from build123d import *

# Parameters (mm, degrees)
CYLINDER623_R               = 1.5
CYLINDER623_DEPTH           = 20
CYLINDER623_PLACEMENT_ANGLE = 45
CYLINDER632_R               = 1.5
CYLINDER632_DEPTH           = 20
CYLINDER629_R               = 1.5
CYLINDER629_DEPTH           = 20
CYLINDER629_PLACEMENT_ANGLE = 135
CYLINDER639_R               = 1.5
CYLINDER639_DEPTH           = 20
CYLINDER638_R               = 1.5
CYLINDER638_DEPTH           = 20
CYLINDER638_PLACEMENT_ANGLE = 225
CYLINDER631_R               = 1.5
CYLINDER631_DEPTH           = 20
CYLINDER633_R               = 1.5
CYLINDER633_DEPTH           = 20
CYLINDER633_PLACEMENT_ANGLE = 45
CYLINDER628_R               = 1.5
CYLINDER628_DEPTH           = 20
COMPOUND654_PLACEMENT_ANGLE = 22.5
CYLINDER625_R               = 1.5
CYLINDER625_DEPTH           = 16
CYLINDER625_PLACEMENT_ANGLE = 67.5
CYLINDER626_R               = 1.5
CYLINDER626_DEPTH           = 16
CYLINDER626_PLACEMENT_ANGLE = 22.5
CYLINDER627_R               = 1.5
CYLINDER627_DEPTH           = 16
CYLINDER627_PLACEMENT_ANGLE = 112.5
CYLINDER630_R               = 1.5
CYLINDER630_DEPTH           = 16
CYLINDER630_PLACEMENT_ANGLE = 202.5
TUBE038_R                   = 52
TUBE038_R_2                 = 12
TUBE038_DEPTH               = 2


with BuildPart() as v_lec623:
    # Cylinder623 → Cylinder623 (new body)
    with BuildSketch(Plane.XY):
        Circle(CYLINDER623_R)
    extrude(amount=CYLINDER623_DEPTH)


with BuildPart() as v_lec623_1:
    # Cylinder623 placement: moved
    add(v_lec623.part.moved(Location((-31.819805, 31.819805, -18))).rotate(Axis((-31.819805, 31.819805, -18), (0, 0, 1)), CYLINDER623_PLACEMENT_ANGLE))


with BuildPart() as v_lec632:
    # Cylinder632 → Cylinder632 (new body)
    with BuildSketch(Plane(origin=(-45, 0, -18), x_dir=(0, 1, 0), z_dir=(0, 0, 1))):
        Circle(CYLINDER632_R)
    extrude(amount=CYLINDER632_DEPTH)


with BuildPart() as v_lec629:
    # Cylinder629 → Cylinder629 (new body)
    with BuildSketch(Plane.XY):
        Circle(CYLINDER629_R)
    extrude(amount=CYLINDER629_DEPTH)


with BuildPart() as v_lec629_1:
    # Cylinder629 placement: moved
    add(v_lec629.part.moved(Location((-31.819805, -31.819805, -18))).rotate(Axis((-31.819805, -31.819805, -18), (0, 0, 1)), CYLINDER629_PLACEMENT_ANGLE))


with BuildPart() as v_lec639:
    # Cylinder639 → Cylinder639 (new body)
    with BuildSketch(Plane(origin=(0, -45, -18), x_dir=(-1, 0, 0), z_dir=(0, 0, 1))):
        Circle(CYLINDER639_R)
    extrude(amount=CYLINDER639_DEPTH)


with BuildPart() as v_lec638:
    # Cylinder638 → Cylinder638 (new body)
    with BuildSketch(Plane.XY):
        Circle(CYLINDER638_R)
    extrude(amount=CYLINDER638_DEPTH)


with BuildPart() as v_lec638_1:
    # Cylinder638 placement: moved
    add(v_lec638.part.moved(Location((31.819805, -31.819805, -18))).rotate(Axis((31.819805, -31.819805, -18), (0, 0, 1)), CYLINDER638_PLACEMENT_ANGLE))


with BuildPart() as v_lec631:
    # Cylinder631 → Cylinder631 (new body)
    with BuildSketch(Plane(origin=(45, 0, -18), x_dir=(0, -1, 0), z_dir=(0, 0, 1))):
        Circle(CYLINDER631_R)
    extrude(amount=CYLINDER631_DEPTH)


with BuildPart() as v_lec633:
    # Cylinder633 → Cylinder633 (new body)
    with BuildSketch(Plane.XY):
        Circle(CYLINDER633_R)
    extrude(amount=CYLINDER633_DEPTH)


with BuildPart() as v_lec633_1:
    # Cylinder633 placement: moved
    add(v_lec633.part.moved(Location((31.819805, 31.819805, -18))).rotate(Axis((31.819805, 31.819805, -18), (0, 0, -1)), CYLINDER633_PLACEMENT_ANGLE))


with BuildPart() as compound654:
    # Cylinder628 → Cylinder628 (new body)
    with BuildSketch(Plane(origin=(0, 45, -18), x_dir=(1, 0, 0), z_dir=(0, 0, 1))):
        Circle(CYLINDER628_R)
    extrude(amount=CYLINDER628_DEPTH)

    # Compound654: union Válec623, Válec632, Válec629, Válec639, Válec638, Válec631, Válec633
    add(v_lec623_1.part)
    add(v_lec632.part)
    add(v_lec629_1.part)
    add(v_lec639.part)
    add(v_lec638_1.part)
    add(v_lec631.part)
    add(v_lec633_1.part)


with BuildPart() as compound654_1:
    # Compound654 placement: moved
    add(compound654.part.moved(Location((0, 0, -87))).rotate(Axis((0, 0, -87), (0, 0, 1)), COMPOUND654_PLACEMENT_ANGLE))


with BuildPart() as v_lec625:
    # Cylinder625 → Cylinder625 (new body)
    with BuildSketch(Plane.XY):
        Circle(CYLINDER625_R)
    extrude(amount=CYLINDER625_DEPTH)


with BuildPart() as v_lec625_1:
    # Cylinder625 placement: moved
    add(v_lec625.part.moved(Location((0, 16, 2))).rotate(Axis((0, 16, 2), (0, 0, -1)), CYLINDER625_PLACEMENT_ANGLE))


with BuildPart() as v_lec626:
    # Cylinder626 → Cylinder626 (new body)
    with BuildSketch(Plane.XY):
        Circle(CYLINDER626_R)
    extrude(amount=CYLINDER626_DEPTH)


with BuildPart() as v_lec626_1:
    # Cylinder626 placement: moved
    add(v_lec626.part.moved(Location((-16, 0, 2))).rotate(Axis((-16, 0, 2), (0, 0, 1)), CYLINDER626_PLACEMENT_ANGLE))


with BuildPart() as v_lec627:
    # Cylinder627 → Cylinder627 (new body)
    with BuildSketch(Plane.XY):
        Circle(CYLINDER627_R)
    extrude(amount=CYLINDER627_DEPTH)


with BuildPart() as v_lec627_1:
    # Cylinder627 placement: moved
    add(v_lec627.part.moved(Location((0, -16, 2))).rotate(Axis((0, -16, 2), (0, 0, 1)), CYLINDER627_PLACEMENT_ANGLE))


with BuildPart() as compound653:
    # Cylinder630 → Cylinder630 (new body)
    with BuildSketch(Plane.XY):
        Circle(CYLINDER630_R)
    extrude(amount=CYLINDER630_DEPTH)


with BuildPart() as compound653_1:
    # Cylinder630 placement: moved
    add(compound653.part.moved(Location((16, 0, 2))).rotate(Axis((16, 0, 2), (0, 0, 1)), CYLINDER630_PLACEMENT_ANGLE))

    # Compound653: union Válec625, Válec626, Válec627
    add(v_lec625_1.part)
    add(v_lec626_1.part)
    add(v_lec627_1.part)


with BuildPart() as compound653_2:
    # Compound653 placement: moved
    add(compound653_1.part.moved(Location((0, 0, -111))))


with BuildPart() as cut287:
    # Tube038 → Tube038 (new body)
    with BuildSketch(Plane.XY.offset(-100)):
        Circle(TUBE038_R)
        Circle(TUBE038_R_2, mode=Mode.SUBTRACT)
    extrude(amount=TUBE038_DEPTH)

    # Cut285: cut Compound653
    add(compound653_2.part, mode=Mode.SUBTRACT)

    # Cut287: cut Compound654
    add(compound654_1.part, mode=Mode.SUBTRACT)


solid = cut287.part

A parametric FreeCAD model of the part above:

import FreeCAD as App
import Part
import Sketcher
Q = App.Units.Quantity

doc = App.newDocument("Part")
body = doc.addObject("PartDesign::Body", "Body")

# Sketch on XY plane
sketch1 = doc.addObject("Sketcher::SketchObject", "Sketch")
body.addObject(sketch1)
sketch1.AttachmentSupport = (doc.XY_Plane, [""])
sketch1.MapMode = "FlatFace"
sketch1.addGeometry(Part.Circle(App.Vector(0, 0, 0), App.Vector(0, 0, 1), 1.5), False)
sketch1.addConstraint(Sketcher.Constraint("Coincident", 0, 3, -1, 1))
sketch1.addConstraint(Sketcher.Constraint("Diameter", 0, Q("3 mm")))
pad1 = doc.addObject("PartDesign::Pad", "Pad")
body.addObject(pad1)
pad1.Profile = sketch1
pad1.Length = 20
body2 = doc.addObject("PartDesign::Body", "Body001")
doc.recompute()

body.Placement = App.Placement(App.Vector(-31.819805, 31.819805, -18), App.Rotation(App.Vector(0, 0, 1), 45))
boolean = doc.addObject("PartDesign::Boolean", "Boolean")
body2.addObject(boolean)
boolean.Type = "Fuse"
boolean.addObjects([body])
body3 = doc.addObject("PartDesign::Body", "Body002")

# Sketch on XY plane
sketch2 = doc.addObject("Sketcher::SketchObject", "Sketch001")
body3.addObject(sketch2)
sketch2.AttachmentSupport = (doc.getObject("XY_Plane002"), [""])
sketch2.MapMode = "FlatFace"
sketch2.AttachmentOffset = App.Placement(App.Vector(0, 0, -18), App.Rotation())
sketch2.addGeometry(Part.Circle(App.Vector(-45, 0, 0), App.Vector(0, 0, 1), 1.5), False)
sketch2.addConstraint(Sketcher.Constraint("PointOnObject", 0, 3, -1))
sketch2.addConstraint(Sketcher.Constraint("Diameter", 0, Q("3 mm")))
sketch2.addConstraint(Sketcher.Constraint("DistanceX", 0, 3, -1, 1, Q("45 mm")))
pad2 = doc.addObject("PartDesign::Pad", "Pad001")
body3.addObject(pad2)
pad2.Profile = sketch2
pad2.Length = 20
body4 = doc.addObject("PartDesign::Body", "Body003")

# Sketch on XY plane
sketch3 = doc.addObject("Sketcher::SketchObject", "Sketch002")
body4.addObject(sketch3)
sketch3.AttachmentSupport = (doc.getObject("XY_Plane003"), [""])
sketch3.MapMode = "FlatFace"
sketch3.addGeometry(Part.Circle(App.Vector(0, 0, 0), App.Vector(0, 0, 1), 1.5), False)
sketch3.addConstraint(Sketcher.Constraint("Coincident", 0, 3, -1, 1))
sketch3.addConstraint(Sketcher.Constraint("Diameter", 0, Q("3 mm")))
pad3 = doc.addObject("PartDesign::Pad", "Pad002")
body4.addObject(pad3)
pad3.Profile = sketch3
pad3.Length = 20
body5 = doc.addObject("PartDesign::Body", "Body004")
doc.recompute()

body4.Placement = App.Placement(App.Vector(-31.819805, -31.819805, -18), App.Rotation(App.Vector(0, 0, 1), 135))
boolean2 = doc.addObject("PartDesign::Boolean", "Boolean001")
body5.addObject(boolean2)
boolean2.Type = "Fuse"
boolean2.addObjects([body4])
body6 = doc.addObject("PartDesign::Body", "Body005")

# Sketch on XY plane
sketch4 = doc.addObject("Sketcher::SketchObject", "Sketch003")
body6.addObject(sketch4)
sketch4.AttachmentSupport = (doc.getObject("XY_Plane005"), [""])
sketch4.MapMode = "FlatFace"
sketch4.AttachmentOffset = App.Placement(App.Vector(0, 0, -18), App.Rotation())
sketch4.addGeometry(Part.Circle(App.Vector(0, -45, 0), App.Vector(0, 0, 1), 1.5), False)
sketch4.addConstraint(Sketcher.Constraint("PointOnObject", 0, 3, -2))
sketch4.addConstraint(Sketcher.Constraint("Diameter", 0, Q("3 mm")))
sketch4.addConstraint(Sketcher.Constraint("DistanceY", 0, 3, -1, 1, Q("45 mm")))
pad4 = doc.addObject("PartDesign::Pad", "Pad003")
body6.addObject(pad4)
pad4.Profile = sketch4
pad4.Length = 20
body7 = doc.addObject("PartDesign::Body", "Body006")

# Sketch on XY plane
sketch5 = doc.addObject("Sketcher::SketchObject", "Sketch004")
body7.addObject(sketch5)
sketch5.AttachmentSupport = (doc.getObject("XY_Plane006"), [""])
sketch5.MapMode = "FlatFace"
sketch5.addGeometry(Part.Circle(App.Vector(0, 0, 0), App.Vector(0, 0, 1), 1.5), False)
sketch5.addConstraint(Sketcher.Constraint("Coincident", 0, 3, -1, 1))
sketch5.addConstraint(Sketcher.Constraint("Diameter", 0, Q("3 mm")))
pad5 = doc.addObject("PartDesign::Pad", "Pad004")
body7.addObject(pad5)
pad5.Profile = sketch5
pad5.Length = 20
body8 = doc.addObject("PartDesign::Body", "Body007")
doc.recompute()

body7.Placement = App.Placement(App.Vector(31.819805, -31.819805, -18), App.Rotation(App.Vector(0, 0, 1), 225))
boolean3 = doc.addObject("PartDesign::Boolean", "Boolean002")
body8.addObject(boolean3)
boolean3.Type = "Fuse"
boolean3.addObjects([body7])
body9 = doc.addObject("PartDesign::Body", "Body008")

# Sketch on XY plane
sketch6 = doc.addObject("Sketcher::SketchObject", "Sketch005")
body9.addObject(sketch6)
sketch6.AttachmentSupport = (doc.getObject("XY_Plane008"), [""])
sketch6.MapMode = "FlatFace"
sketch6.AttachmentOffset = App.Placement(App.Vector(0, 0, -18), App.Rotation())
sketch6.addGeometry(Part.Circle(App.Vector(45, 0, 0), App.Vector(0, 0, 1), 1.5), False)
sketch6.addConstraint(Sketcher.Constraint("PointOnObject", 0, 3, -1))
sketch6.addConstraint(Sketcher.Constraint("Diameter", 0, Q("3 mm")))
sketch6.addConstraint(Sketcher.Constraint("DistanceX", -1, 1, 0, 3, Q("45 mm")))
pad6 = doc.addObject("PartDesign::Pad", "Pad005")
body9.addObject(pad6)
pad6.Profile = sketch6
pad6.Length = 20
body10 = doc.addObject("PartDesign::Body", "Body009")

# Sketch on XY plane
sketch7 = doc.addObject("Sketcher::SketchObject", "Sketch006")
body10.addObject(sketch7)
sketch7.AttachmentSupport = (doc.getObject("XY_Plane009"), [""])
sketch7.MapMode = "FlatFace"
sketch7.addGeometry(Part.Circle(App.Vector(0, 0, 0), App.Vector(0, 0, 1), 1.5), False)
sketch7.addConstraint(Sketcher.Constraint("Coincident", 0, 3, -1, 1))
sketch7.addConstraint(Sketcher.Constraint("Diameter", 0, Q("3 mm")))
pad7 = doc.addObject("PartDesign::Pad", "Pad006")
body10.addObject(pad7)
pad7.Profile = sketch7
pad7.Length = 20
body11 = doc.addObject("PartDesign::Body", "Body010")
doc.recompute()

body10.Placement = App.Placement(App.Vector(31.819805, 31.819805, -18), App.Rotation(App.Vector(0, 0, -1), 45))
boolean4 = doc.addObject("PartDesign::Boolean", "Boolean003")
body11.addObject(boolean4)
boolean4.Type = "Fuse"
boolean4.addObjects([body10])
body12 = doc.addObject("PartDesign::Body", "Body011")
body12.AllowCompound = True

# Sketch on XY plane
sketch8 = doc.addObject("Sketcher::SketchObject", "Sketch007")
body12.addObject(sketch8)
sketch8.AttachmentSupport = (doc.getObject("XY_Plane011"), [""])
sketch8.MapMode = "FlatFace"
sketch8.AttachmentOffset = App.Placement(App.Vector(0, 0, -18), App.Rotation())
sketch8.addGeometry(Part.Circle(App.Vector(0, 45, 0), App.Vector(0, 0, 1), 1.5), False)
sketch8.addConstraint(Sketcher.Constraint("PointOnObject", 0, 3, -2))
sketch8.addConstraint(Sketcher.Constraint("Diameter", 0, Q("3 mm")))
sketch8.addConstraint(Sketcher.Constraint("DistanceY", -1, 1, 0, 3, Q("45 mm")))
pad8 = doc.addObject("PartDesign::Pad", "Pad007")
body12.addObject(pad8)
pad8.Profile = sketch8
pad8.Length = 20
doc.recompute()

boolean5 = doc.addObject("PartDesign::Boolean", "Boolean004")
body12.addObject(boolean5)
boolean5.Type = "Fuse"
boolean5.addObjects([body2])
doc.recompute()

boolean6 = doc.addObject("PartDesign::Boolean", "Boolean005")
body12.addObject(boolean6)
boolean6.Type = "Fuse"
boolean6.addObjects([body3])
doc.recompute()

boolean7 = doc.addObject("PartDesign::Boolean", "Boolean006")
body12.addObject(boolean7)
boolean7.Type = "Fuse"
boolean7.addObjects([body5])
doc.recompute()

boolean8 = doc.addObject("PartDesign::Boolean", "Boolean007")
body12.addObject(boolean8)
boolean8.Type = "Fuse"
boolean8.addObjects([body6])
doc.recompute()

boolean9 = doc.addObject("PartDesign::Boolean", "Boolean008")
body12.addObject(boolean9)
boolean9.Type = "Fuse"
boolean9.addObjects([body8])
doc.recompute()

boolean10 = doc.addObject("PartDesign::Boolean", "Boolean009")
body12.addObject(boolean10)
boolean10.Type = "Fuse"
boolean10.addObjects([body9])
doc.recompute()

boolean11 = doc.addObject("PartDesign::Boolean", "Boolean010")
body12.addObject(boolean11)
boolean11.Type = "Fuse"
boolean11.addObjects([body11])
body13 = doc.addObject("PartDesign::Body", "Body012")
body13.AllowCompound = True
doc.recompute()

body12.Placement = App.Placement(App.Vector(0, 0, -87), App.Rotation(App.Vector(0, 0, 1), 22.5))
boolean12 = doc.addObject("PartDesign::Boolean", "Boolean011")
body13.addObject(boolean12)
boolean12.Type = "Fuse"
boolean12.addObjects([body12])
body14 = doc.addObject("PartDesign::Body", "Body013")

# Sketch on XY plane
sketch9 = doc.addObject("Sketcher::SketchObject", "Sketch008")
body14.addObject(sketch9)
sketch9.AttachmentSupport = (doc.getObject("XY_Plane013"), [""])
sketch9.MapMode = "FlatFace"
sketch9.addGeometry(Part.Circle(App.Vector(0, 0, 0), App.Vector(0, 0, 1), 1.5), False)
sketch9.addConstraint(Sketcher.Constraint("Coincident", 0, 3, -1, 1))
sketch9.addConstraint(Sketcher.Constraint("Diameter", 0, Q("3 mm")))
pad9 = doc.addObject("PartDesign::Pad", "Pad008")
body14.addObject(pad9)
pad9.Profile = sketch9
pad9.Length = 16
body15 = doc.addObject("PartDesign::Body", "Body014")
doc.recompute()

body14.Placement = App.Placement(App.Vector(0, 16, 2), App.Rotation(App.Vector(0, 0, -1), 67.5))
boolean13 = doc.addObject("PartDesign::Boolean", "Boolean012")
body15.addObject(boolean13)
boolean13.Type = "Fuse"
boolean13.addObjects([body14])
body16 = doc.addObject("PartDesign::Body", "Body015")

# Sketch on XY plane
sketch10 = doc.addObject("Sketcher::SketchObject", "Sketch009")
body16.addObject(sketch10)
sketch10.AttachmentSupport = (doc.getObject("XY_Plane015"), [""])
sketch10.MapMode = "FlatFace"
sketch10.addGeometry(Part.Circle(App.Vector(0, 0, 0), App.Vector(0, 0, 1), 1.5), False)
sketch10.addConstraint(Sketcher.Constraint("Coincident", 0, 3, -1, 1))
sketch10.addConstraint(Sketcher.Constraint("Diameter", 0, Q("3 mm")))
pad10 = doc.addObject("PartDesign::Pad", "Pad009")
body16.addObject(pad10)
pad10.Profile = sketch10
pad10.Length = 16
body17 = doc.addObject("PartDesign::Body", "Body016")
doc.recompute()

body16.Placement = App.Placement(App.Vector(-16, 0, 2), App.Rotation(App.Vector(0, 0, 1), 22.5))
boolean14 = doc.addObject("PartDesign::Boolean", "Boolean013")
body17.addObject(boolean14)
boolean14.Type = "Fuse"
boolean14.addObjects([body16])
body18 = doc.addObject("PartDesign::Body", "Body017")

# Sketch on XY plane
sketch11 = doc.addObject("Sketcher::SketchObject", "Sketch010")
body18.addObject(sketch11)
sketch11.AttachmentSupport = (doc.getObject("XY_Plane017"), [""])
sketch11.MapMode = "FlatFace"
sketch11.addGeometry(Part.Circle(App.Vector(0, 0, 0), App.Vector(0, 0, 1), 1.5), False)
sketch11.addConstraint(Sketcher.Constraint("Coincident", 0, 3, -1, 1))
sketch11.addConstraint(Sketcher.Constraint("Diameter", 0, Q("3 mm")))
pad11 = doc.addObject("PartDesign::Pad", "Pad010")
body18.addObject(pad11)
pad11.Profile = sketch11
pad11.Length = 16
body19 = doc.addObject("PartDesign::Body", "Body018")
doc.recompute()

body18.Placement = App.Placement(App.Vector(0, -16, 2), App.Rotation(App.Vector(0, 0, 1), 112.5))
boolean15 = doc.addObject("PartDesign::Boolean", "Boolean014")
body19.addObject(boolean15)
boolean15.Type = "Fuse"
boolean15.addObjects([body18])
body20 = doc.addObject("PartDesign::Body", "Body019")

# Sketch on XY plane
sketch12 = doc.addObject("Sketcher::SketchObject", "Sketch011")
body20.addObject(sketch12)
sketch12.AttachmentSupport = (doc.getObject("XY_Plane019"), [""])
sketch12.MapMode = "FlatFace"
sketch12.addGeometry(Part.Circle(App.Vector(0, 0, 0), App.Vector(0, 0, 1), 1.5), False)
sketch12.addConstraint(Sketcher.Constraint("Coincident", 0, 3, -1, 1))
sketch12.addConstraint(Sketcher.Constraint("Diameter", 0, Q("3 mm")))
pad12 = doc.addObject("PartDesign::Pad", "Pad011")
body20.addObject(pad12)
pad12.Profile = sketch12
pad12.Length = 16
body21 = doc.addObject("PartDesign::Body", "Body020")
body21.AllowCompound = True
doc.recompute()

body20.Placement = App.Placement(App.Vector(16, 0, 2), App.Rotation(App.Vector(0, 0, 1), 202.5))
boolean16 = doc.addObject("PartDesign::Boolean", "Boolean015")
body21.addObject(boolean16)
boolean16.Type = "Fuse"
boolean16.addObjects([body20])
doc.recompute()

boolean17 = doc.addObject("PartDesign::Boolean", "Boolean016")
body21.addObject(boolean17)
boolean17.Type = "Fuse"
boolean17.addObjects([body15])
doc.recompute()

boolean18 = doc.addObject("PartDesign::Boolean", "Boolean017")
body21.addObject(boolean18)
boolean18.Type = "Fuse"
boolean18.addObjects([body17])
doc.recompute()

boolean19 = doc.addObject("PartDesign::Boolean", "Boolean018")
body21.addObject(boolean19)
boolean19.Type = "Fuse"
boolean19.addObjects([body19])
body22 = doc.addObject("PartDesign::Body", "Body021")
body22.AllowCompound = True
doc.recompute()

body21.Placement = App.Placement(App.Vector(0, 0, -111), App.Rotation(App.Vector(0, 0, 1), 0))
boolean20 = doc.addObject("PartDesign::Boolean", "Boolean019")
body22.addObject(boolean20)
boolean20.Type = "Fuse"
boolean20.addObjects([body21])
body23 = doc.addObject("PartDesign::Body", "Body022")

# Sketch on XY plane
sketch13 = doc.addObject("Sketcher::SketchObject", "Sketch012")
body23.addObject(sketch13)
sketch13.AttachmentSupport = (doc.getObject("XY_Plane022"), [""])
sketch13.MapMode = "FlatFace"
sketch13.AttachmentOffset = App.Placement(App.Vector(0, 0, -100), App.Rotation())
sketch13.addGeometry(Part.Circle(App.Vector(0, 0, 0), App.Vector(0, 0, 1), 52), False)
sketch13.addGeometry(Part.Circle(App.Vector(0, 0, 0), App.Vector(0, 0, 1), 12), False)
sketch13.addConstraint(Sketcher.Constraint("Coincident", 0, 3, -1, 1))
sketch13.addConstraint(Sketcher.Constraint("Coincident", 1, 3, -1, 1))
sketch13.addConstraint(Sketcher.Constraint("Diameter", 0, Q("104 mm")))
sketch13.addConstraint(Sketcher.Constraint("Diameter", 1, Q("24 mm")))
pad13 = doc.addObject("PartDesign::Pad", "Pad012")
body23.addObject(pad13)
pad13.Profile = sketch13
pad13.Length = 2
doc.recompute()

boolean21 = doc.addObject("PartDesign::Boolean", "Boolean020")
body23.addObject(boolean21)
boolean21.Type = "Cut"
boolean21.addObjects([body22])
doc.recompute()

boolean22 = doc.addObject("PartDesign::Boolean", "Boolean021")
body23.addObject(boolean22)
boolean22.Type = "Cut"
boolean22.addObjects([body13])

doc.recompute()
